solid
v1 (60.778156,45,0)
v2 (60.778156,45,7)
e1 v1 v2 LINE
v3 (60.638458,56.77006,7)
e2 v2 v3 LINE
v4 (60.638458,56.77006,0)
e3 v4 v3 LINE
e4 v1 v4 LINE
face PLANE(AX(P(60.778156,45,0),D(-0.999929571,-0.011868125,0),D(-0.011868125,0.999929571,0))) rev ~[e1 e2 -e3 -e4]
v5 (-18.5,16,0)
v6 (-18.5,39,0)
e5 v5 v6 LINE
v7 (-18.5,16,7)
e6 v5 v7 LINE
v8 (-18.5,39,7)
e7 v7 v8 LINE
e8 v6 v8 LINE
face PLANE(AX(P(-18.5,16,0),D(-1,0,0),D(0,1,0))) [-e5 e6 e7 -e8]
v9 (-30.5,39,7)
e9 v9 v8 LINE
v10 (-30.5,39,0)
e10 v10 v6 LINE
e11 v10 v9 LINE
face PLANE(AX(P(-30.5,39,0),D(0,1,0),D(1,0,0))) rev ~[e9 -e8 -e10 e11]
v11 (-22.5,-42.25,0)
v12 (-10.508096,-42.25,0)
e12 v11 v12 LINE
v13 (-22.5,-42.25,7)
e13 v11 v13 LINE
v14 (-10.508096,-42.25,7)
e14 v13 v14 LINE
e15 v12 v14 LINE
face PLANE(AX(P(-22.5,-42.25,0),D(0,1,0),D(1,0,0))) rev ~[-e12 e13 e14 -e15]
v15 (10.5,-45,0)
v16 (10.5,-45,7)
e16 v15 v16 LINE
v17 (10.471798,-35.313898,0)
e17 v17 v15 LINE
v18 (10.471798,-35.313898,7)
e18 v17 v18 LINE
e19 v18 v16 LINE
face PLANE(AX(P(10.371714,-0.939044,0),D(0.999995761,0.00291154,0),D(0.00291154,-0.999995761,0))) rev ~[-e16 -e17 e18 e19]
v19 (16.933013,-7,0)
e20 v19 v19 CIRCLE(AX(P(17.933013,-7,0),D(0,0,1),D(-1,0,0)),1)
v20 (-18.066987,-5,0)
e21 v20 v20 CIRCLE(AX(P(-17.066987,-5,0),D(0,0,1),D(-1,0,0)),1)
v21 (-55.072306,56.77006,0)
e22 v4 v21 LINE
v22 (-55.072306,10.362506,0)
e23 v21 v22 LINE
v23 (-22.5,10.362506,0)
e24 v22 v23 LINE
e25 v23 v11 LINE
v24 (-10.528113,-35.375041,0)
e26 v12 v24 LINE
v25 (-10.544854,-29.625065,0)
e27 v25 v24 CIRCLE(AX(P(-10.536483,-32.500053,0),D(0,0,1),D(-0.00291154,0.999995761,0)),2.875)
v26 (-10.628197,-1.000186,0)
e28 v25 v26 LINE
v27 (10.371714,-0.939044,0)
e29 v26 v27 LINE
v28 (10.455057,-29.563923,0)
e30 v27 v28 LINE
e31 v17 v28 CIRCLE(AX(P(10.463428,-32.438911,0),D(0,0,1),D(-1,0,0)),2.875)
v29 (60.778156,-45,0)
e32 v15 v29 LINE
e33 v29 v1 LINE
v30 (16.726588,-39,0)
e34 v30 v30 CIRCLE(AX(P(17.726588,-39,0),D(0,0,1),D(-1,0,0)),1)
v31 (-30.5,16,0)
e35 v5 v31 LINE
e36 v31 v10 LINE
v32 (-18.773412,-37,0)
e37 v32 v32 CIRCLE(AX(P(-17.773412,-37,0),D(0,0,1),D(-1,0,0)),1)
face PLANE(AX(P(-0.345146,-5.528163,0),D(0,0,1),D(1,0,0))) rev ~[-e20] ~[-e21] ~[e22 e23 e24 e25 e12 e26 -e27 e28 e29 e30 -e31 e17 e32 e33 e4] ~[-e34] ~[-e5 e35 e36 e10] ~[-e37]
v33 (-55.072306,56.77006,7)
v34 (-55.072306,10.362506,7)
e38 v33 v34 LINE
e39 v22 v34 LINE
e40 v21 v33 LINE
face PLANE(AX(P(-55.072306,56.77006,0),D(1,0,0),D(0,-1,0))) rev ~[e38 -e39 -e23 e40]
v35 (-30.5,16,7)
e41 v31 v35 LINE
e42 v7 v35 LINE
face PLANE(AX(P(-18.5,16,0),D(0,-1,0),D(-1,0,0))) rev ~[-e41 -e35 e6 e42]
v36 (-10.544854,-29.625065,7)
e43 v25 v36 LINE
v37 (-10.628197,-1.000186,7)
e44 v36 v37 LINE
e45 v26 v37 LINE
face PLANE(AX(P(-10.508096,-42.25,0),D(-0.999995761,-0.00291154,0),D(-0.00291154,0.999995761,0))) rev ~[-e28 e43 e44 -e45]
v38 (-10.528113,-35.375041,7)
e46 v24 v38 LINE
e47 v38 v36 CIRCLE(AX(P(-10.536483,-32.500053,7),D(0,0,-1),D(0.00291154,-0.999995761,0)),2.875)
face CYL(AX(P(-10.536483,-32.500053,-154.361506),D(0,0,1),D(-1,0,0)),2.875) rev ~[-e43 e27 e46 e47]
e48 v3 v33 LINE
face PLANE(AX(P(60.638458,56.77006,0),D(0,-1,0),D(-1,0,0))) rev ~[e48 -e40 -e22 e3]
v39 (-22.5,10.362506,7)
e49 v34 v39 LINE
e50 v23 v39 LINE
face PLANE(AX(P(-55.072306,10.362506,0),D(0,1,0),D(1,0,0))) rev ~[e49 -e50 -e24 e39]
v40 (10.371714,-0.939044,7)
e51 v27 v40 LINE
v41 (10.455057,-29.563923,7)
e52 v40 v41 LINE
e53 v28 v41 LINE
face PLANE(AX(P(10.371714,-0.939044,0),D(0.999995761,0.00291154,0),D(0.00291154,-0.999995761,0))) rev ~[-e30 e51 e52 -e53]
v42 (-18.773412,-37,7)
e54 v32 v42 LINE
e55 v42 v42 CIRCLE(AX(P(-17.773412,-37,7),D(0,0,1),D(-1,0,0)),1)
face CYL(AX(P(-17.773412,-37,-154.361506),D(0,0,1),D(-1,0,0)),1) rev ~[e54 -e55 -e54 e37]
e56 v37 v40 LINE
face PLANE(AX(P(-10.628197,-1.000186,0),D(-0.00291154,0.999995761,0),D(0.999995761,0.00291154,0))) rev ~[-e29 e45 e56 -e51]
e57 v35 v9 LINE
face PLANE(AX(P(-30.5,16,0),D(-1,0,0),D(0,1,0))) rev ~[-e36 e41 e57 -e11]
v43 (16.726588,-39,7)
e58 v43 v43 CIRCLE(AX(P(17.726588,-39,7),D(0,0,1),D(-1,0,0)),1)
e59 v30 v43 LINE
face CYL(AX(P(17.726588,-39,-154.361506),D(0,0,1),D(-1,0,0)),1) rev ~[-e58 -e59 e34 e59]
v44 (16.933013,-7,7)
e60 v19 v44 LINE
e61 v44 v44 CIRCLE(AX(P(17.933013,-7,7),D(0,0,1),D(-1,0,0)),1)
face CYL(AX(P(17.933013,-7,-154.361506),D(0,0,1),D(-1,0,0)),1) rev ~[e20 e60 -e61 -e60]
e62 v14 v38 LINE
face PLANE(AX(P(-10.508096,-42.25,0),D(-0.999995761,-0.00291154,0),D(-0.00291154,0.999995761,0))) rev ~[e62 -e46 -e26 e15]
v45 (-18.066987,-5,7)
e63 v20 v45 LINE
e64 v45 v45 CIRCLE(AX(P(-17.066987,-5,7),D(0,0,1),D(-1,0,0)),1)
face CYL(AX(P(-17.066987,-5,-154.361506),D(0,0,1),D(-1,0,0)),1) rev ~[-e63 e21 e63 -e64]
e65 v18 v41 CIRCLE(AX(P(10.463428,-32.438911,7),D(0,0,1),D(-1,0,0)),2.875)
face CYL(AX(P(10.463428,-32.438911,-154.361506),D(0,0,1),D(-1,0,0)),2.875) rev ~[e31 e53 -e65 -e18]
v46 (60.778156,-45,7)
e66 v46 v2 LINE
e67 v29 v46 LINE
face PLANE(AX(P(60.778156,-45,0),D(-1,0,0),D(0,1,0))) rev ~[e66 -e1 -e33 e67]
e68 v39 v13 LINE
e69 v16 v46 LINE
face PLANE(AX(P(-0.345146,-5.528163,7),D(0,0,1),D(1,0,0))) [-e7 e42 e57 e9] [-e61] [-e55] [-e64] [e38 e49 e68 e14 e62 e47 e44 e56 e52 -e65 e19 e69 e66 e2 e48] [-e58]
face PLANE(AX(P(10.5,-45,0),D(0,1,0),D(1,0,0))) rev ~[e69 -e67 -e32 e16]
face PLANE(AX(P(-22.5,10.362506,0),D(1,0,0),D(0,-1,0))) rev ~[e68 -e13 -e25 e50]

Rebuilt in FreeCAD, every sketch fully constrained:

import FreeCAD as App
import Part
import Sketcher

V = App.Vector

doc = App.newDocument("Part")
params = doc.addObject("Spreadsheet::Sheet", "Params")
for row, (alias, value) in enumerate([
    ("sketch1_width", "12 mm"),
    ("sketch1_height", "90 mm"),
    ("sketch1_height2", "23 mm"),
    ("sketch1_length", "21 mm"),
    ("pad1_length", "7 mm"),
    ("sketch2_diameter", "2 mm"),
    ("hole_diameter", "2 mm"),
    ("sketch3_diameter", "5.75 mm"),
    ("hole2_diameter", "5.75 mm"),
], start=1):
    params.set(f"A{row}", alias)
    params.set(f"B{row}", "=" + value)
    params.setAlias(f"B{row}", alias)

body = doc.addObject("PartDesign::Body", "Body")

sketch1 = body.newObject("Sketcher::SketchObject", "Sketch")
sketch1.AttachmentSupport = (doc.getObject("XY_Plane"), [""])
sketch1.MapMode = "FlatFace"
sketch1.addGeometry([
    Part.LineSegment(V(10.5, -45, 0), V(60.778156, -45, 0)),
    Part.LineSegment(V(60.778156, -45, 0), V(60.778156, 45, 0)),
    Part.LineSegment(V(60.778156, 45, 0), V(60.638458, 56.77006, 0)),
    Part.LineSegment(V(60.638458, 56.77006, 0), V(-55.072306, 56.77006, 0)),
    Part.LineSegment(V(-55.072306, 56.77006, 0), V(-55.072306, 10.362506, 0)),
    Part.LineSegment(V(-55.072306, 10.362506, 0), V(-22.5, 10.362506, 0)),
    Part.LineSegment(V(-22.5, 10.362506, 0), V(-22.5, -42.25, 0)),
    Part.LineSegment(V(-22.5, -42.25, 0), V(-10.508096, -42.25, 0)),
    Part.LineSegment(V(-10.508096, -42.25, 0), V(-10.628197, -1.000186, 0)),
    Part.LineSegment(V(-10.628197, -1.000186, 0), V(10.371714, -0.939044, 0)),
    Part.LineSegment(V(10.371714, -0.939044, 0), V(10.5, -45, 0)),
    Part.LineSegment(V(-30.5, 16, 0), V(-30.5, 39, 0)),
    Part.LineSegment(V(-30.5, 39, 0), V(-18.5, 39, 0)),
    Part.LineSegment(V(-18.5, 39, 0), V(-18.5, 16, 0)),
    Part.LineSegment(V(-18.5, 16, 0), V(-30.5, 16, 0)),
], False)
sketch1.addConstraint([
    Sketcher.Constraint("Coincident", 0, 2, 1, 1),
    Sketcher.Constraint("Coincident", 1, 2, 2, 1),
    Sketcher.Constraint("Coincident", 2, 2, 3, 1),
    Sketcher.Constraint("Coincident", 3, 2, 4, 1),
    Sketcher.Constraint("Coincident", 4, 2, 5, 1),
    Sketcher.Constraint("Coincident", 5, 2, 6, 1),
    Sketcher.Constraint("Coincident", 6, 2, 7, 1),
    Sketcher.Constraint("Coincident", 7, 2, 8, 1),
    Sketcher.Constraint("Coincident", 8, 2, 9, 1),
    Sketcher.Constraint("Coincident", 9, 2, 10, 1),
    Sketcher.Constraint("Coincident", 10, 2, 0, 1),
    Sketcher.Constraint("Coincident", 11, 2, 12, 1),
    Sketcher.Constraint("Coincident", 12, 2, 13, 1),
    Sketcher.Constraint("Coincident", 13, 2, 14, 1),
    Sketcher.Constraint("Coincident", 14, 2, 11, 1),
    Sketcher.Constraint("Horizontal", 0),
    Sketcher.Constraint("Vertical", 1),
    Sketcher.Constraint("Horizontal", 3),
    Sketcher.Constraint("Vertical", 4),
    Sketcher.Constraint("Horizontal", 5),
    Sketcher.Constraint("Vertical", 6),
    Sketcher.Constraint("Horizontal", 7),
    Sketcher.Constraint("Vertical", 11),
    Sketcher.Constraint("Horizontal", 12),
    Sketcher.Constraint("Vertical", 13),
    Sketcher.Constraint("Horizontal", 14),
    Sketcher.Constraint("DistanceX", 12, 1, 12, 2, 12.0),
    Sketcher.Constraint("DistanceY", 1, 1, 1, 2, 90.0),
    Sketcher.Constraint("DistanceY", 11, 1, 11, 2, 23.0),
    Sketcher.Constraint("Distance", 9, 21.0),
    Sketcher.Constraint("DistanceY", 0, 2, -1, 1, 45.0),
    Sketcher.Constraint("DistanceY", -1, 1, 11, 2, 39.0),
    Sketcher.Constraint("DistanceX", 6, 2, 10, 2, 33.0),
    Sketcher.Constraint("DistanceX", 11, 2, 5, 2, 8.0),
    Sketcher.Constraint("DistanceX", 5, 2, -1, 1, 22.5),
    Sketcher.Constraint("DistanceY", 6, 2, -1, 1, 42.25),
    Sketcher.Constraint("DistanceX", 2, 2, 1, 2, 0.139698),
    Sketcher.Constraint("DistanceX", 8, 2, 7, 2, 0.120101),
    Sketcher.Constraint("Distance", 2, 11.770889),
    Sketcher.Constraint("Distance", 8, 41.249988),
    Sketcher.Constraint("DistanceX", 0, 1, 0, 2, 50.278156),
    Sketcher.Constraint("DistanceX", 3, 2, 3, 1, 115.710764),
    Sketcher.Constraint("DistanceX", 7, 1, 7, 2, 11.991904),
    Sketcher.Constraint("DistanceY", 4, 2, 4, 1, 46.407554),
    Sketcher.Constraint("DistanceY", 9, 2, 5, 2, 11.30155),
])
sketch1.setExpression("Constraints[26]", "Params.sketch1_width")
sketch1.setExpression("Constraints[27]", "Params.sketch1_height")
sketch1.setExpression("Constraints[28]", "Params.sketch1_height2")
sketch1.setExpression("Constraints[29]", "Params.sketch1_length")
pad1 = body.newObject("PartDesign::Pad", "Pad")
pad1.Profile = sketch1
pad1.setExpression("Length", "Params.pad1_length")

sketch2 = body.newObject("Sketcher::SketchObject", "Sketch001")
sketch2.AttachmentSupport = (doc.getObject("XY_Plane"), [""])
sketch2.MapMode = "FlatFace"
sketch2.addGeometry([
    Part.Circle(V(-17.1, -5, 0), V(0, 0, 1), 1),
    Part.Circle(V(-17.8, -37, 0), V(0, 0, 1), 1),
    Part.Circle(V(17.7, -39, 0), V(0, 0, 1), 1),
    Part.Circle(V(17.9, -7, 0), V(0, 0, 1), 1),
], False)
sketch2.addConstraint([
    Sketcher.Constraint("Equal", 0, 1),
    Sketcher.Constraint("Equal", 1, 2),
    Sketcher.Constraint("Equal", 2, 3),
    Sketcher.Constraint("Diameter", 0, 2.0),
    Sketcher.Constraint("DistanceY", 0, 3, -1, 1, 5.0),
    Sketcher.Constraint("DistanceY", 1, 3, -1, 1, 37.0),
    Sketcher.Constraint("DistanceY", 2, 3, -1, 1, 39.0),
    Sketcher.Constraint("DistanceY", 3, 3, -1, 1, 7.0),
    Sketcher.Constraint("DistanceX", 0, 3, 3, 3, 35.0),
    Sketcher.Constraint("DistanceX", 1, 3, 2, 3, 35.5),
    Sketcher.Constraint("DistanceX", 0, 3, -1, 1, 17.066987),
    Sketcher.Constraint("DistanceX", 1, 3, -1, 1, 17.773412),
])
sketch2.setExpression("Constraints[3]", "Params.sketch2_diameter")
doc.recompute()
hole = body.newObject("PartDesign::Hole", "Hole")
hole.Profile = sketch2
hole.ThreadType = "None"
hole.setExpression("Diameter", "Params.hole_diameter")
hole.DepthType = "ThroughAll"
hole.Reversed = True

sketch3 = body.newObject("Sketcher::SketchObject", "Sketch002")
sketch3.AttachmentSupport = (doc.getObject("XY_Plane"), [""])
sketch3.MapMode = "FlatFace"
sketch3.addGeometry([
    Part.Circle(V(-10.5, -32.5, 0), V(0, 0, 1), 2.9),
    Part.Circle(V(10.5, -32.4, 0), V(0, 0, 1), 2.9),
], False)
sketch3.addConstraint([
    Sketcher.Constraint("Equal", 0, 1),
    Sketcher.Constraint("Diameter", 0, 5.75),
    Sketcher.Constraint("DistanceY", 1, 3, -1, 1, 32.438911),
    Sketcher.Constraint("DistanceX", 0, 3, 1, 3, 20.999911),
    Sketcher.Constraint("DistanceX", 0, 3, -1, 1, 10.536483),
    Sketcher.Constraint("DistanceY", 0, 3, -1, 1, 32.500053),
])
sketch3.setExpression("Constraints[1]", "Params.sketch3_diameter")
doc.recompute()
hole2 = body.newObject("PartDesign::Hole", "Hole001")
hole2.Profile = sketch3
hole2.ThreadType = "None"
hole2.setExpression("Diameter", "Params.hole2_diameter")
hole2.DepthType = "ThroughAll"
hole2.Reversed = True

doc.recompute()
